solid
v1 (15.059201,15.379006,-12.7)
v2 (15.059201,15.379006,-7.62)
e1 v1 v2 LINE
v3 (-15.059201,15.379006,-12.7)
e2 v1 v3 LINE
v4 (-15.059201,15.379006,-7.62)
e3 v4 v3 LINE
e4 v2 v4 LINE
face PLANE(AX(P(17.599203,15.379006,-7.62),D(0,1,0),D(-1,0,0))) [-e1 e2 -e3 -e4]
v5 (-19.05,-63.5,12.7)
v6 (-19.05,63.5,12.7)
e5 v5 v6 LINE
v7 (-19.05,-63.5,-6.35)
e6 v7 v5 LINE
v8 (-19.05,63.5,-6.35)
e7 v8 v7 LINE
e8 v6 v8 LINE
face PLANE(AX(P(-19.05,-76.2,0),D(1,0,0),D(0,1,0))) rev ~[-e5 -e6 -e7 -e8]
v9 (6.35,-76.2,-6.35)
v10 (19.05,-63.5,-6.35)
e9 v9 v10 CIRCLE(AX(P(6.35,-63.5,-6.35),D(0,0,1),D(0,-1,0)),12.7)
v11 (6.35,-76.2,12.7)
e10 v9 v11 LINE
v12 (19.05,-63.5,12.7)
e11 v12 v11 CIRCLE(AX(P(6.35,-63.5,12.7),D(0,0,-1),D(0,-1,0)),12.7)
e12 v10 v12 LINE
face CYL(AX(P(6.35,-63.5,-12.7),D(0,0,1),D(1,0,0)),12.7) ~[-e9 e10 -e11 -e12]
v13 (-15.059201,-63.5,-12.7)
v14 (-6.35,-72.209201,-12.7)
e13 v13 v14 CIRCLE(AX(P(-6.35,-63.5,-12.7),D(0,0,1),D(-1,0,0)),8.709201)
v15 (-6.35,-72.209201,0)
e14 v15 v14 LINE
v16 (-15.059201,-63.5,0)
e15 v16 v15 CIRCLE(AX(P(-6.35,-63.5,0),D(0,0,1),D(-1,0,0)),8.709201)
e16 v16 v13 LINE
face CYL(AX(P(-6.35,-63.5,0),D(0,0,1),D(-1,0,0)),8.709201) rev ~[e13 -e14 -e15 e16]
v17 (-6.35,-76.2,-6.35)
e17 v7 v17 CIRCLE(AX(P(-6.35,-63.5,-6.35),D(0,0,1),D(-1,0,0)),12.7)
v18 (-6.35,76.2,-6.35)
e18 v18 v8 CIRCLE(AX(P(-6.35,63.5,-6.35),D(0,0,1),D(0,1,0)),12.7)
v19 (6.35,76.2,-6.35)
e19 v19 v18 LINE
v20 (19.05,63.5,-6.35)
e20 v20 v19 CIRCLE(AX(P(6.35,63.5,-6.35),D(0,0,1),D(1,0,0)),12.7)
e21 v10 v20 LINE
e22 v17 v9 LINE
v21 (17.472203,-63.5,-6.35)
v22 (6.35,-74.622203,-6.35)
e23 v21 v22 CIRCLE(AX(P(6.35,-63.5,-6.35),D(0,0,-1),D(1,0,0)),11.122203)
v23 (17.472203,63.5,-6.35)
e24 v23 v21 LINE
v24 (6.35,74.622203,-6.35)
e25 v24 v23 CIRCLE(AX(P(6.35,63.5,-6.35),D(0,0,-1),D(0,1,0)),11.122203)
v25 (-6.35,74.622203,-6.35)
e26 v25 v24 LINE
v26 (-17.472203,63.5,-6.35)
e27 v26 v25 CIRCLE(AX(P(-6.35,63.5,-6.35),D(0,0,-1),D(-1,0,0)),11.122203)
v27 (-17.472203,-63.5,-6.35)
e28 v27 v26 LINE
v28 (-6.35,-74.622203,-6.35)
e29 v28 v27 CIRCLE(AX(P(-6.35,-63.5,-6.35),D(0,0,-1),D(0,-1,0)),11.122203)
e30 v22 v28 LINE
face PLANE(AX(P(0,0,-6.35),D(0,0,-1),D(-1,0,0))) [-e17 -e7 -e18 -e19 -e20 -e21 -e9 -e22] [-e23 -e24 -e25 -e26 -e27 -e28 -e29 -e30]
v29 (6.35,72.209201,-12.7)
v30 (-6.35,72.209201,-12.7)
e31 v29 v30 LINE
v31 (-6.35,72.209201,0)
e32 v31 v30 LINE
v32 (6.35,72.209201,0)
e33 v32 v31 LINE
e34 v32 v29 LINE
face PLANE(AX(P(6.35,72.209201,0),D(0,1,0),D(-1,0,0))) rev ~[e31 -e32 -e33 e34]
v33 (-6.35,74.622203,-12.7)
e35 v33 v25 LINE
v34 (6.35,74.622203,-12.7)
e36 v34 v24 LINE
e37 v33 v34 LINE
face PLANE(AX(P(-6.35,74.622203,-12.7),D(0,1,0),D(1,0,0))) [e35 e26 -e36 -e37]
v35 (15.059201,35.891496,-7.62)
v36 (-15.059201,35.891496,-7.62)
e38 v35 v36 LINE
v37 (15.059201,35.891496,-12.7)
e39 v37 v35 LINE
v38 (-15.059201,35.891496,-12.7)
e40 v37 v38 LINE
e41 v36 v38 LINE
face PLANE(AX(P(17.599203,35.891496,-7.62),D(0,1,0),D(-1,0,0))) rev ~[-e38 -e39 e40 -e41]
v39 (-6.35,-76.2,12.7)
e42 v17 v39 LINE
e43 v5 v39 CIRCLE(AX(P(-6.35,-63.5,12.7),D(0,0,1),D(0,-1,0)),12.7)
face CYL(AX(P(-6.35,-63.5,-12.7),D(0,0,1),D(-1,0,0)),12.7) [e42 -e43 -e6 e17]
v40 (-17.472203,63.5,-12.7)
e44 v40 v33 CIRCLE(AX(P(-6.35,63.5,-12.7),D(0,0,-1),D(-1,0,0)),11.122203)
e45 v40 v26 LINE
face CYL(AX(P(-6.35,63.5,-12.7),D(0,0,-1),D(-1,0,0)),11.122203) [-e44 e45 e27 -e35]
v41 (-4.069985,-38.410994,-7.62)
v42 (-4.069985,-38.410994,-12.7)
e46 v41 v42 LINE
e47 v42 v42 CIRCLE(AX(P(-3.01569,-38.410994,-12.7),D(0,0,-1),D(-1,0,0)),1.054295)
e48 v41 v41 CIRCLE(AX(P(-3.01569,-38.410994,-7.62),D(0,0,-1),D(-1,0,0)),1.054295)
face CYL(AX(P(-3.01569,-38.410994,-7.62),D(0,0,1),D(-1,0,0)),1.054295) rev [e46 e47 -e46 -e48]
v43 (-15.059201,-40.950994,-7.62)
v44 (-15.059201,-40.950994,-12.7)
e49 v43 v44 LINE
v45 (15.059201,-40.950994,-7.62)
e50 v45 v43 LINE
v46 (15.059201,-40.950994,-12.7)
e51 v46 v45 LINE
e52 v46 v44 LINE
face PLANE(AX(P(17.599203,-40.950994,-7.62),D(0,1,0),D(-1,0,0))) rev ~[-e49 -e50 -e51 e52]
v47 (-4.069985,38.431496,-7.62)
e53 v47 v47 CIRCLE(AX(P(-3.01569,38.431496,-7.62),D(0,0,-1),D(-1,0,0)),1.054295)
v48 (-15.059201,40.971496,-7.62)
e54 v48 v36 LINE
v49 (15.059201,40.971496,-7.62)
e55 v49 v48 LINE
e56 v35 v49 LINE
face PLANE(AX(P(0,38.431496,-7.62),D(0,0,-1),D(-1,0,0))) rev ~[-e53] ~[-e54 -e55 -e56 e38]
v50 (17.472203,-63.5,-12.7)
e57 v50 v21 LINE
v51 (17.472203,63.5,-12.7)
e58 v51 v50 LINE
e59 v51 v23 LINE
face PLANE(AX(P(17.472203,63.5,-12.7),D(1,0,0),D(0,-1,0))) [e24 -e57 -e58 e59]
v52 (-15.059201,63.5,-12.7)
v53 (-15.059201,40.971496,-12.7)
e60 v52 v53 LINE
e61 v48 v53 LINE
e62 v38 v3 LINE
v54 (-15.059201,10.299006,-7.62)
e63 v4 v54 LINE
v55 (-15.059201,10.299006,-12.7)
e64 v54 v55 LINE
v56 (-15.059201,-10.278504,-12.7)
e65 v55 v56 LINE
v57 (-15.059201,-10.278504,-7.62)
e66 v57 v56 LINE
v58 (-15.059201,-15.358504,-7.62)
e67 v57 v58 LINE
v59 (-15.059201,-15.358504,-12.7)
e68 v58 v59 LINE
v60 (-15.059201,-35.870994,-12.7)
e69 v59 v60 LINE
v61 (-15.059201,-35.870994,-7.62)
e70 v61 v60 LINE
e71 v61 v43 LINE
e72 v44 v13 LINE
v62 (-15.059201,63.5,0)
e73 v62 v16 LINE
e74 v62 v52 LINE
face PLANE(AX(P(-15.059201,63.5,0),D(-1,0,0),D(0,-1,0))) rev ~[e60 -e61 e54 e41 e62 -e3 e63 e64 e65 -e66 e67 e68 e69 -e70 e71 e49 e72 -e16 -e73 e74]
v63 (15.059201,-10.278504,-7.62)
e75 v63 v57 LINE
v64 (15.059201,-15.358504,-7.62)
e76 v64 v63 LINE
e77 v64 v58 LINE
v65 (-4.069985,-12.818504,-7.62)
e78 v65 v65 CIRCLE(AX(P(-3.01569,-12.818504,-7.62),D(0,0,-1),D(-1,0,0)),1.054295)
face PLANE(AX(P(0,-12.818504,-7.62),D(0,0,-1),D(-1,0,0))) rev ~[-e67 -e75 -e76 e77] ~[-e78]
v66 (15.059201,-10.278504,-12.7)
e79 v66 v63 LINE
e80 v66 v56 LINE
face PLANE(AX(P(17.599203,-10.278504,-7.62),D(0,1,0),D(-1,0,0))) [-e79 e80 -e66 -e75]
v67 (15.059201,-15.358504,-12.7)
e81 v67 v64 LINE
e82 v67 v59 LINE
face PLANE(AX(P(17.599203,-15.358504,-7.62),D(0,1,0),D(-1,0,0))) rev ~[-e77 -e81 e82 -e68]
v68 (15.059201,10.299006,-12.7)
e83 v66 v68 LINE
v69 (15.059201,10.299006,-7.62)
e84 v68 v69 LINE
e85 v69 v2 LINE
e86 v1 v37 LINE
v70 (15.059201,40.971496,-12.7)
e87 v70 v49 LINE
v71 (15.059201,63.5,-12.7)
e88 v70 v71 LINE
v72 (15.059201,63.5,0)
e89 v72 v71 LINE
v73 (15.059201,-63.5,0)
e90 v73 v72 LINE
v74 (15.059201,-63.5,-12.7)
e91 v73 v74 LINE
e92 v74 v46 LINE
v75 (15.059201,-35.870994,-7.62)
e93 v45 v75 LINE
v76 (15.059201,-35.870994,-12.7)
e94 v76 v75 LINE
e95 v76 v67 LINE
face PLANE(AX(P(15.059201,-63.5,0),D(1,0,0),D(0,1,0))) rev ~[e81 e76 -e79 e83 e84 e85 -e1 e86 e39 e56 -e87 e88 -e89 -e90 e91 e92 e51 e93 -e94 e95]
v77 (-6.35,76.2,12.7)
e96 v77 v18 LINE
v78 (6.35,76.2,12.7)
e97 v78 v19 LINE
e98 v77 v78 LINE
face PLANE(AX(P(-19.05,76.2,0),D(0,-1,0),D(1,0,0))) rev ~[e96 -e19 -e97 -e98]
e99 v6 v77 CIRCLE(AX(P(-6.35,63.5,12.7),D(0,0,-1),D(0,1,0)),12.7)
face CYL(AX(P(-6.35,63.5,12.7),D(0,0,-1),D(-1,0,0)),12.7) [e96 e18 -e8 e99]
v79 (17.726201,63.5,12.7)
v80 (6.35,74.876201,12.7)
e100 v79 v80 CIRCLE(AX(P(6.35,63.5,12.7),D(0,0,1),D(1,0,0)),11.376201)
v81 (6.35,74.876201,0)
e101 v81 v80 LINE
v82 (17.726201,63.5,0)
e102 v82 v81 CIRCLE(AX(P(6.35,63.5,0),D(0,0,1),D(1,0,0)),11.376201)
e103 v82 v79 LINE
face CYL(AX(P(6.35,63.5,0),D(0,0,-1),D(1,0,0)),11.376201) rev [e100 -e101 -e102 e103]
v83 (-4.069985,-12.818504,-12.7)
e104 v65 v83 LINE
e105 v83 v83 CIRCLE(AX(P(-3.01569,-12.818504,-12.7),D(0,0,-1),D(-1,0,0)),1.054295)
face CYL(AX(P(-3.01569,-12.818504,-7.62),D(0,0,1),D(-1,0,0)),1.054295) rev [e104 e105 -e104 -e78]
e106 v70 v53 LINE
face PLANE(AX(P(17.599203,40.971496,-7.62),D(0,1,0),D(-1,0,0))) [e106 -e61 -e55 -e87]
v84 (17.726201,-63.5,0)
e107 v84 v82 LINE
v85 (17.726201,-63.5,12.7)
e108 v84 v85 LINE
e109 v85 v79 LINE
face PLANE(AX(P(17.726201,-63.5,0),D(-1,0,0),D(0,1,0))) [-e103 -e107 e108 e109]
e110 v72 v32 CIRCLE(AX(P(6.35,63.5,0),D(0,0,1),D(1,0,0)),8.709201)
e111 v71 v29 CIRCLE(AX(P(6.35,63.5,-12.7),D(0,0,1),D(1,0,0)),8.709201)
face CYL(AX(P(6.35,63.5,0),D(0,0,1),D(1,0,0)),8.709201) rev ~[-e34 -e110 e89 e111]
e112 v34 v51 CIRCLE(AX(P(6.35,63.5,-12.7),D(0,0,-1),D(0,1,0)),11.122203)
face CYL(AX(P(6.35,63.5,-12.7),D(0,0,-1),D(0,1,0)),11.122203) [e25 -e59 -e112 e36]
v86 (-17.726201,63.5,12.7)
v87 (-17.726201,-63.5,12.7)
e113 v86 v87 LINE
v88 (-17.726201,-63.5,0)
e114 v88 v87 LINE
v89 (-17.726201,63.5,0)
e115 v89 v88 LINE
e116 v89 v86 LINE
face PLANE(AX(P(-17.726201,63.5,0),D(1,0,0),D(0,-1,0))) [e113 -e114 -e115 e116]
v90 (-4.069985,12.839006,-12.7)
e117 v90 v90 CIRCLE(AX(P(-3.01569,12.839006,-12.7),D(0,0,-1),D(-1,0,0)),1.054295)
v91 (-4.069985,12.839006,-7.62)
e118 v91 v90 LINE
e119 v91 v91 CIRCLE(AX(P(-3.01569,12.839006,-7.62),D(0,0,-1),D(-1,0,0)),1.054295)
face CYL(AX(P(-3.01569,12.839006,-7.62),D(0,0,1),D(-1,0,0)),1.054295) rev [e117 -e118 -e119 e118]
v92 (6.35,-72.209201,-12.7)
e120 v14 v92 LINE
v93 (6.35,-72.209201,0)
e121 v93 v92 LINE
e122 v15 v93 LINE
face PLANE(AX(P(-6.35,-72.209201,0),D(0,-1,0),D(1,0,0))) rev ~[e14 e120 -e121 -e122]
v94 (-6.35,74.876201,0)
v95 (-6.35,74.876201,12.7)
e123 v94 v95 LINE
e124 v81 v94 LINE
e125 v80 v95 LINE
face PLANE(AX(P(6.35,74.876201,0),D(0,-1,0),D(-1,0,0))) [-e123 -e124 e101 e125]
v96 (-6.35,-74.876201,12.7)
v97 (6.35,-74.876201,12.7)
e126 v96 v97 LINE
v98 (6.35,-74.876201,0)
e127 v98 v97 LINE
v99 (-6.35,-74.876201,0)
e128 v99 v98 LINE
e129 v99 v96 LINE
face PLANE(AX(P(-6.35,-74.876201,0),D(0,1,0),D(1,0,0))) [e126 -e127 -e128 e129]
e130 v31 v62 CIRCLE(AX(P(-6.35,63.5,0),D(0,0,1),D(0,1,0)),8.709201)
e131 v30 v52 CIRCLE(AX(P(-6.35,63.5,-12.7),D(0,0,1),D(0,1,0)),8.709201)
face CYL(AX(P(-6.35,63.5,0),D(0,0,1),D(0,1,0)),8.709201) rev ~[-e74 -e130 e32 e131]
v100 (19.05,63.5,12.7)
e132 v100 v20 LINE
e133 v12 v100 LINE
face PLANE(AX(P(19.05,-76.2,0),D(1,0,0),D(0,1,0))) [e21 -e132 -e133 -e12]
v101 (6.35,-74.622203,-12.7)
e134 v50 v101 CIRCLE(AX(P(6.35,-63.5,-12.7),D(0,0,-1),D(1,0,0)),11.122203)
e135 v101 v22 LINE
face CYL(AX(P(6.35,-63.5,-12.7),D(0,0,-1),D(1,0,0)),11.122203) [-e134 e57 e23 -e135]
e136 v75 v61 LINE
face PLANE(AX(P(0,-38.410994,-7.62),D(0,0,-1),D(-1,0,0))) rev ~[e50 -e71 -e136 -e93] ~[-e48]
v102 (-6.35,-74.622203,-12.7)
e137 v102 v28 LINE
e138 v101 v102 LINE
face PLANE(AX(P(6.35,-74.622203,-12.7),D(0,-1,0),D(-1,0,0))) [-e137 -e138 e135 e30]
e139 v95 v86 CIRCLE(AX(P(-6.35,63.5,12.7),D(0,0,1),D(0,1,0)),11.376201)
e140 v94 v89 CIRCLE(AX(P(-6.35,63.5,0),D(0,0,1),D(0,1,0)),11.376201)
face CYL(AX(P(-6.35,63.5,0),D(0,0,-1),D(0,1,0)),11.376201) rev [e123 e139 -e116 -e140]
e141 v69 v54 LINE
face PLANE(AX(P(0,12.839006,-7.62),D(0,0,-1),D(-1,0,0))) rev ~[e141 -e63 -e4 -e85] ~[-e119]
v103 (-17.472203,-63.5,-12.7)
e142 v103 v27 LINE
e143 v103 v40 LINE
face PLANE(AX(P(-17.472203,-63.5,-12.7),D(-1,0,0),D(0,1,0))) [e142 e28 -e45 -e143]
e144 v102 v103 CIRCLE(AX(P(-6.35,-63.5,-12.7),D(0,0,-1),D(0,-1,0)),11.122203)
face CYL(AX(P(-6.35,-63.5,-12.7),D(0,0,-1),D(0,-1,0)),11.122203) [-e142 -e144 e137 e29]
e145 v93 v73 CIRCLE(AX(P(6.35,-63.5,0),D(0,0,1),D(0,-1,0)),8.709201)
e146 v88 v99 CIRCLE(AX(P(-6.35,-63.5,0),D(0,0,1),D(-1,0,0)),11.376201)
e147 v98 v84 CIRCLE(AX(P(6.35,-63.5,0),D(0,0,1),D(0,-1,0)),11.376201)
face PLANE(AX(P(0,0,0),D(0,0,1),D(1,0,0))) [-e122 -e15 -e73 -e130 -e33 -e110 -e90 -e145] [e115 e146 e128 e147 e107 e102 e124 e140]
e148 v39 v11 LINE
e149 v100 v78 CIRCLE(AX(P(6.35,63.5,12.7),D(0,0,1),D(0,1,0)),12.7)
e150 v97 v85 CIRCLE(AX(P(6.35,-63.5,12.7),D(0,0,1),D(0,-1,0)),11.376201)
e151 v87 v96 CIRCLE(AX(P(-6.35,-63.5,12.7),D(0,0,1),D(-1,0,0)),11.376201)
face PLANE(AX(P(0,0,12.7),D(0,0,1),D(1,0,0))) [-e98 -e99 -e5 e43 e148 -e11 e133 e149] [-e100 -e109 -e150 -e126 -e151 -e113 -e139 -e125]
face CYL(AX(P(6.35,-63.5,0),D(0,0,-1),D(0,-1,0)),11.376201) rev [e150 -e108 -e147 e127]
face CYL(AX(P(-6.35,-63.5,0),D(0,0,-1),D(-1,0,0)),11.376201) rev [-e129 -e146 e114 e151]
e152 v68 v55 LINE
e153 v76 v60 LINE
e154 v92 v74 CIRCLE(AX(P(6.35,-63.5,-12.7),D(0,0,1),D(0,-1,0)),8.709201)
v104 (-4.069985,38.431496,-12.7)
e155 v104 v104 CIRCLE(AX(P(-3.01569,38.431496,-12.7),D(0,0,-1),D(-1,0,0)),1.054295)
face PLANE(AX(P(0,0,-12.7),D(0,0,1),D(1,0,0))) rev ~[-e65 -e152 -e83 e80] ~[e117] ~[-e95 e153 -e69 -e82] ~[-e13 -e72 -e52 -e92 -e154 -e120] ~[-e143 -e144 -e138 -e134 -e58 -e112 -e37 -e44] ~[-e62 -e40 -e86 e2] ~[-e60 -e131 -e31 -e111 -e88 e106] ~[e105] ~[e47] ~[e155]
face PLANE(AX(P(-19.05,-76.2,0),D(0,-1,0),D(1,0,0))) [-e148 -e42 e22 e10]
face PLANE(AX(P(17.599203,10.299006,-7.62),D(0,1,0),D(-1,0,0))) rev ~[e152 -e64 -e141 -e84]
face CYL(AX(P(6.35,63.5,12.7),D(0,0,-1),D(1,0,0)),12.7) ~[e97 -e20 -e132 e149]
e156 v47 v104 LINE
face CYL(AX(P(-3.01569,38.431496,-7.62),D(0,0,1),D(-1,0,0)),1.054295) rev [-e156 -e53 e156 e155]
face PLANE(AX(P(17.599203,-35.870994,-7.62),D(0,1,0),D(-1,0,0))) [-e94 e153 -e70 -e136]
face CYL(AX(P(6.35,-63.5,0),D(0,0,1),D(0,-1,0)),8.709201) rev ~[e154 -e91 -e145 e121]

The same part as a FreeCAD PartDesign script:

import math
import FreeCAD as App
import Part
import Sketcher

V = App.Vector
Q = App.Units.Quantity


def edges_at(feature, points):
    """Names of the edges that pass closest to the given points."""
    edges = feature.Shape.Edges
    near = lambda p: min(range(len(edges)), key=lambda i: edges[i].distToShape(Part.Vertex(*p))[0])
    return sorted({f"Edge{near(p) + 1}" for p in points})


def add_polygon(sketch, points):
    """Adds a closed chain of lines whose ends are joined by coincident constraints."""
    first, n = sketch.GeometryCount, len(points)
    for a, b in zip(points, points[1:] + points[:1]):
        sketch.addGeometry(Part.LineSegment(App.Vector(*a, 0), App.Vector(*b, 0)), False)
    for i in range(n):
        sketch.addConstraint(Sketcher.Constraint("Coincident", first + i, 2, first + (i + 1) % n, 1))

doc = App.newDocument("Part")
params = doc.addObject("Spreadsheet::Sheet", "Params")
for row, (alias, value) in enumerate([
    ("sketch1_height", "6 in"),
    ("sketch1_width", "1.5 in"),
    ("pad1_length", "1 in"),
    ("fillet_radius", "0.5 in"),
    ("sketch2_height", "5 in"),
    ("sketch2_width", "0.5 in"),
    ("sketch3_height", "5 in"),
    ("sketch3_width", "0.5 in"),
    ("pad2_length", "0.5 in"),
    ("sketch4_radius", "0.5 in"),
    ("sketch4_height", "5 in"),
    ("sketch4_width", "0.5 in"),
    ("pocket2_length", "0.25 in"),
    ("sketch5_height", "0.2 in"),
    ("pad3_length", "0.2 in"),
    ("sketch6_height", "5 in"),
    ("sketch6_width", "0.5 in"),
    ("pocket3_length", "0.25 in"),
    ("sketch7_height", "5 in"),
    ("sketch7_width", "0.5 in"),
    ("pocket4_length", "0.5 in"),
], start=1):
    params.set(f"A{row}", alias)
    params.set(f"B{row}", "=" + value)
    params.setAlias(f"B{row}", alias)

body = doc.addObject("PartDesign::Body", "Body")

# Sketch on XY plane
sketch1 = body.newObject("Sketcher::SketchObject", "Sketch")
sketch1.AttachmentSupport = (doc.getObject("XY_Plane"), [""])
sketch1.MapMode = "FlatFace"
add_polygon(sketch1, [(-19, 76), (-19, -76), (19, -76), (19, 76)])  # lines 0-3
sketch1.addConstraint(Sketcher.Constraint("Vertical", 0))
sketch1.addConstraint(Sketcher.Constraint("Horizontal", 1))
sketch1.addConstraint(Sketcher.Constraint("Vertical", 2))
sketch1.addConstraint(Sketcher.Constraint("Horizontal", 3))
sketch1.addConstraint(Sketcher.Constraint("Symmetric", 0, 2, 2, 2, -1, 1))
sketch1.addConstraint(Sketcher.Constraint("DistanceY", 0, 2, 0, 1, Q("6 in")))
sketch1.addConstraint(Sketcher.Constraint("DistanceX", 1, 1, 1, 2, Q("1.5 in")))
sketch1.setExpression("Constraints[9]", "Params.sketch1_height")
sketch1.setExpression("Constraints[10]", "Params.sketch1_width")
pad1 = body.newObject("PartDesign::Pad", "Pad")
pad1.Profile = sketch1
pad1.setExpression("Length", "Params.pad1_length")
pad1.Midplane = True
doc.recompute()

fillet = body.newObject("PartDesign::Fillet", "Fillet")
fillet.Base = (pad1, edges_at(pad1, [
    (19.05, -76.2, 0),
    (-19.05, -76.2, 0),
    (-19.05, 76.2, 0),
    (19.05, 76.2, 0),
]))
fillet.setExpression("Radius", "Params.fillet_radius")

# Sketch on XY plane
sketch2 = body.newObject("Sketcher::SketchObject", "Sketch001")
sketch2.AttachmentSupport = (doc.getObject("XY_Plane"), [""])
sketch2.MapMode = "FlatFace"
sketch2.AttachmentOffset = App.Placement(V(0, 0, 0.5 * 25.4), App.Rotation())
sketch2.addGeometry(Part.LineSegment(V(-18, 64, 0), V(-18, -64, 0)), False)
sketch2.addGeometry(Part.ArcOfCircle(Part.Circle(V(-6, -64, 0), V(0, 0, 1), 11), math.radians(180), math.radians(270)), False)
sketch2.addGeometry(Part.LineSegment(V(-6, -75, 0), V(6, -75, 0)), False)
sketch2.addGeometry(Part.ArcOfCircle(Part.Circle(V(6, -64, 0), V(0, 0, 1), 11), math.radians(-90), math.radians(0)), False)
sketch2.addGeometry(Part.LineSegment(V(18, -64, 0), V(18, 64, 0)), False)
sketch2.addGeometry(Part.ArcOfCircle(Part.Circle(V(6, 64, 0), V(0, 0, 1), 11), math.radians(0), math.radians(90)), False)
sketch2.addGeometry(Part.LineSegment(V(6, 75, 0), V(-6, 75, 0)), False)
sketch2.addGeometry(Part.ArcOfCircle(Part.Circle(V(-6, 64, 0), V(0, 0, 1), 11), math.radians(90), math.radians(180)), False)
sketch2.addConstraint(Sketcher.Constraint("Tangent", 0, 2, 1, 1))
sketch2.addConstraint(Sketcher.Constraint("Tangent", 1, 2, 2, 1))
sketch2.addConstraint(Sketcher.Constraint("Tangent", 2, 2, 3, 1))
sketch2.addConstraint(Sketcher.Constraint("Tangent", 3, 2, 4, 1))
sketch2.addConstraint(Sketcher.Constraint("Tangent", 4, 2, 5, 1))
sketch2.addConstraint(Sketcher.Constraint("Tangent", 5, 2, 6, 1))
sketch2.addConstraint(Sketcher.Constraint("Tangent", 6, 2, 7, 1))
sketch2.addConstraint(Sketcher.Constraint("Tangent", 7, 2, 0, 1))
sketch2.addConstraint(Sketcher.Constraint("Vertical", 0))
sketch2.addConstraint(Sketcher.Constraint("Horizontal", 2))
sketch2.addConstraint(Sketcher.Constraint("Vertical", 4))
sketch2.addConstraint(Sketcher.Constraint("Horizontal", 6))
sketch2.addConstraint(Sketcher.Constraint("Equal", 1, 3))
sketch2.addConstraint(Sketcher.Constraint("Equal", 3, 5))
sketch2.addConstraint(Sketcher.Constraint("Equal", 5, 7))
sketch2.addConstraint(Sketcher.Constraint("Symmetric", 1, 3, 5, 3, -1, 1))
sketch2.addConstraint(Sketcher.Constraint("DistanceY", 0, 2, 0, 1, Q("5 in")))
sketch2.addConstraint(Sketcher.Constraint("DistanceX", 2, 1, 2, 2, Q("0.5 in")))
sketch2.addConstraint(Sketcher.Constraint("Radius", 1, 11.249201))
sketch2.setExpression("Constraints[16]", "Params.sketch2_height")
sketch2.setExpression("Constraints[17]", "Params.sketch2_width")
pocket1 = body.newObject("PartDesign::Pocket", "Pocket")
pocket1.Profile = sketch2
pocket1.Type = "ThroughAll"

# Sketch on XY plane
sketch3 = body.newObject("Sketcher::SketchObject", "Sketch002")
sketch3.AttachmentSupport = (doc.getObject("XY_Plane"), [""])
sketch3.MapMode = "FlatFace"
sketch3.addGeometry(Part.LineSegment(V(-6, 75, 0), V(6, 75, 0)), False)
sketch3.addGeometry(Part.ArcOfCircle(Part.Circle(V(6, 64, 0), V(0, 0, 1), 11), math.radians(0), math.radians(90)), False)
sketch3.addGeometry(Part.LineSegment(V(18, 64, 0), V(18, -64, 0)), False)
sketch3.addGeometry(Part.ArcOfCircle(Part.Circle(V(6, -64, 0), V(0, 0, 1), 11), math.radians(-90), math.radians(0)), False)
sketch3.addGeometry(Part.LineSegment(V(6, -75, 0), V(-6, -75, 0)), False)
sketch3.addGeometry(Part.ArcOfCircle(Part.Circle(V(-6, -64, 0), V(0, 0, 1), 11), math.radians(180), math.radians(270)), False)
sketch3.addGeometry(Part.LineSegment(V(-18, -64, 0), V(-18, 64, 0)), False)
sketch3.addGeometry(Part.ArcOfCircle(Part.Circle(V(-6, 64, 0), V(0, 0, 1), 11), math.radians(90), math.radians(180)), False)
sketch3.addGeometry(Part.LineSegment(V(6, 72, 0), V(-6, 72, 0)), False)
sketch3.addGeometry(Part.ArcOfCircle(Part.Circle(V(-6, 64, 0), V(0, 0, 1), 9), math.radians(90), math.radians(180)), False)
sketch3.addGeometry(Part.LineSegment(V(-15, 64, 0), V(-15, -64, 0)), False)
sketch3.addGeometry(Part.ArcOfCircle(Part.Circle(V(-6, -64, 0), V(0, 0, 1), 9), math.radians(180), math.radians(270)), False)
sketch3.addGeometry(Part.LineSegment(V(-6, -72, 0), V(6, -72, 0)), False)
sketch3.addGeometry(Part.ArcOfCircle(Part.Circle(V(6, -64, 0), V(0, 0, 1), 9), math.radians(-90), math.radians(0)), False)
sketch3.addGeometry(Part.LineSegment(V(15, -64, 0), V(15, 64, 0)), False)
sketch3.addGeometry(Part.ArcOfCircle(Part.Circle(V(6, 64, 0), V(0, 0, 1), 9), math.radians(0), math.radians(90)), False)
sketch3.addConstraint(Sketcher.Constraint("Tangent", 0, 2, 1, 2))
sketch3.addConstraint(Sketcher.Constraint("Tangent", 1, 1, 2, 1))
sketch3.addConstraint(Sketcher.Constraint("Tangent", 2, 2, 3, 2))
sketch3.addConstraint(Sketcher.Constraint("Tangent", 3, 1, 4, 1))
sketch3.addConstraint(Sketcher.Constraint("Tangent", 4, 2, 5, 2))
sketch3.addConstraint(Sketcher.Constraint("Tangent", 5, 1, 6, 1))
sketch3.addConstraint(Sketcher.Constraint("Tangent", 6, 2, 7, 2))
sketch3.addConstraint(Sketcher.Constraint("Tangent", 7, 1, 0, 1))
sketch3.addConstraint(Sketcher.Constraint("Tangent", 8, 2, 9, 1))
sketch3.addConstraint(Sketcher.Constraint("Tangent", 9, 2, 10, 1))
sketch3.addConstraint(Sketcher.Constraint("Tangent", 10, 2, 11, 1))
sketch3.addConstraint(Sketcher.Constraint("Tangent", 11, 2, 12, 1))
sketch3.addConstraint(Sketcher.Constraint("Tangent", 12, 2, 13, 1))
sketch3.addConstraint(Sketcher.Constraint("Tangent", 13, 2, 14, 1))
sketch3.addConstraint(Sketcher.Constraint("Tangent", 14, 2, 15, 1))
sketch3.addConstraint(Sketcher.Constraint("Tangent", 15, 2, 8, 1))
sketch3.addConstraint(Sketcher.Constraint("Horizontal", 0))
sketch3.addConstraint(Sketcher.Constraint("Vertical", 2))
sketch3.addConstraint(Sketcher.Constraint("Horizontal", 4))
sketch3.addConstraint(Sketcher.Constraint("Vertical", 6))
sketch3.addConstraint(Sketcher.Constraint("Horizontal", 8))
sketch3.addConstraint(Sketcher.Constraint("Vertical", 10))
sketch3.addConstraint(Sketcher.Constraint("Horizontal", 12))
sketch3.addConstraint(Sketcher.Constraint("Vertical", 14))
sketch3.addConstraint(Sketcher.Constraint("Coincident", 9, 3, 7, 3))
sketch3.addConstraint(Sketcher.Constraint("Coincident", 11, 3, 5, 3))
sketch3.addConstraint(Sketcher.Constraint("Coincident", 13, 3, 3, 3))
sketch3.addConstraint(Sketcher.Constraint("Equal", 1, 3))
sketch3.addConstraint(Sketcher.Constraint("Equal", 3, 5))
sketch3.addConstraint(Sketcher.Constraint("Equal", 5, 7))
sketch3.addConstraint(Sketcher.Constraint("Equal", 13, 15))
sketch3.addConstraint(Sketcher.Constraint("Symmetric", 1, 3, 5, 3, -1, 1))
sketch3.addConstraint(Sketcher.Constraint("DistanceY", 2, 2, 2, 1, Q("5 in")))
sketch3.addConstraint(Sketcher.Constraint("DistanceX", 0, 1, 0, 2, Q("0.5 in")))
sketch3.addConstraint(Sketcher.Constraint("DistanceY", 8, 2, 7, 1, Q("0.1 in")))
sketch3.addConstraint(Sketcher.Constraint("Radius", 1, 11.249201))
sketch3.setExpression("Constraints[32]", "Params.sketch3_height")
sketch3.setExpression("Constraints[33]", "Params.sketch3_width")
pad2 = body.newObject("PartDesign::Pad", "Pad001")
pad2.Profile = sketch3
pad2.setExpression("Length", "Params.pad2_length")
pad2.Reversed = True

# Sketch on XY plane
sketch4 = body.newObject("Sketcher::SketchObject", "Sketch003")
sketch4.AttachmentSupport = (doc.getObject("XY_Plane"), [""])
sketch4.MapMode = "FlatFace"
sketch4.AttachmentOffset = App.Placement(V(0, 0, -0.5 * 25.4), App.Rotation())
sketch4.addGeometry(Part.LineSegment(V(6, -76, 0), V(-6, -76, 0)), False)
sketch4.addGeometry(Part.ArcOfCircle(Part.Circle(V(-6, -64, 0), V(0, 0, 1), 13), math.radians(180), math.radians(270)), False)
sketch4.addGeometry(Part.LineSegment(V(-19, -64, 0), V(-19, 64, 0)), False)
sketch4.addGeometry(Part.ArcOfCircle(Part.Circle(V(-6, 64, 0), V(0, 0, 1), 13), math.radians(90), math.radians(180)), False)
sketch4.addGeometry(Part.LineSegment(V(-6, 76, 0), V(6, 76, 0)), False)
sketch4.addGeometry(Part.ArcOfCircle(Part.Circle(V(6, 64, 0), V(0, 0, 1), 13), math.radians(0), math.radians(90)), False)
sketch4.addGeometry(Part.LineSegment(V(19, 64, 0), V(19, -64, 0)), False)
sketch4.addGeometry(Part.ArcOfCircle(Part.Circle(V(6, -64, 0), V(0, 0, 1), 13), math.radians(-90), math.radians(0)), False)
sketch4.addGeometry(Part.LineSegment(V(18, -64, 0), V(18, 64, 0)), False)
sketch4.addGeometry(Part.ArcOfCircle(Part.Circle(V(6, 64, 0), V(0, 0, 1), 11), math.radians(0), math.radians(90)), False)
sketch4.addGeometry(Part.LineSegment(V(6, 75, 0), V(-6, 75, 0)), False)
sketch4.addGeometry(Part.ArcOfCircle(Part.Circle(V(-6, 64, 0), V(0, 0, 1), 11), math.radians(90), math.radians(180)), False)
sketch4.addGeometry(Part.LineSegment(V(-18, 64, 0), V(-18, -64, 0)), False)
sketch4.addGeometry(Part.ArcOfCircle(Part.Circle(V(-6, -64, 0), V(0, 0, 1), 11), math.radians(180), math.radians(270)), False)
sketch4.addGeometry(Part.LineSegment(V(-6, -75, 0), V(6, -75, 0)), False)
sketch4.addGeometry(Part.ArcOfCircle(Part.Circle(V(6, -64, 0), V(0, 0, 1), 11), math.radians(-90), math.radians(0)), False)
sketch4.addConstraint(Sketcher.Constraint("Tangent", 0, 2, 1, 2))
sketch4.addConstraint(Sketcher.Constraint("Tangent", 1, 1, 2, 1))
sketch4.addConstraint(Sketcher.Constraint("Tangent", 2, 2, 3, 2))
sketch4.addConstraint(Sketcher.Constraint("Tangent", 3, 1, 4, 1))
sketch4.addConstraint(Sketcher.Constraint("Tangent", 4, 2, 5, 2))
sketch4.addConstraint(Sketcher.Constraint("Tangent", 5, 1, 6, 1))
sketch4.addConstraint(Sketcher.Constraint("Tangent", 6, 2, 7, 2))
sketch4.addConstraint(Sketcher.Constraint("Tangent", 7, 1, 0, 1))
sketch4.addConstraint(Sketcher.Constraint("Tangent", 8, 2, 9, 1))
sketch4.addConstraint(Sketcher.Constraint("Tangent", 9, 2, 10, 1))
sketch4.addConstraint(Sketcher.Constraint("Tangent", 10, 2, 11, 1))
sketch4.addConstraint(Sketcher.Constraint("Tangent", 11, 2, 12, 1))
sketch4.addConstraint(Sketcher.Constraint("Tangent", 12, 2, 13, 1))
sketch4.addConstraint(Sketcher.Constraint("Tangent", 13, 2, 14, 1))
sketch4.addConstraint(Sketcher.Constraint("Tangent", 14, 2, 15, 1))
sketch4.addConstraint(Sketcher.Constraint("Tangent", 15, 2, 8, 1))
sketch4.addConstraint(Sketcher.Constraint("Horizontal", 0))
sketch4.addConstraint(Sketcher.Constraint("Vertical", 2))
sketch4.addConstraint(Sketcher.Constraint("Horizontal", 4))
sketch4.addConstraint(Sketcher.Constraint("Vertical", 6))
sketch4.addConstraint(Sketcher.Constraint("Vertical", 8))
sketch4.addConstraint(Sketcher.Constraint("Horizontal", 10))
sketch4.addConstraint(Sketcher.Constraint("Vertical", 12))
sketch4.addConstraint(Sketcher.Constraint("Horizontal", 14))
sketch4.addConstraint(Sketcher.Constraint("Coincident", 9, 3, 5, 3))
sketch4.addConstraint(Sketcher.Constraint("Coincident", 11, 3, 3, 3))
sketch4.addConstraint(Sketcher.Constraint("Coincident", 13, 3, 1, 3))
sketch4.addConstraint(Sketcher.Constraint("Equal", 1, 3))
sketch4.addConstraint(Sketcher.Constraint("Equal", 3, 5))
sketch4.addConstraint(Sketcher.Constraint("Equal", 5, 7))
sketch4.addConstraint(Sketcher.Constraint("Equal", 13, 15))
sketch4.addConstraint(Sketcher.Constraint("Symmetric", 1, 3, 5, 3, -1, 1))
sketch4.addConstraint(Sketcher.Constraint("Radius", 1, Q("0.5 in")))
sketch4.addConstraint(Sketcher.Constraint("DistanceY", 2, 1, 2, 2, Q("5 in")))
sketch4.addConstraint(Sketcher.Constraint("DistanceX", 0, 2, 0, 1, Q("0.5 in")))
sketch4.addConstraint(Sketcher.Constraint("Radius", 9, 11.249203))
sketch4.setExpression("Constraints[32]", "Params.sketch4_radius")
sketch4.setExpression("Constraints[33]", "Params.sketch4_height")
sketch4.setExpression("Constraints[34]", "Params.sketch4_width")
pocket2 = body.newObject("PartDesign::Pocket", "Pocket001")
pocket2.Profile = sketch4
pocket2.setExpression("Length", "Params.pocket2_length")
pocket2.Reversed = True

# Sketch on XY plane
sketch5 = body.newObject("Sketcher::SketchObject", "Sketch004")
sketch5.AttachmentSupport = (doc.getObject("XY_Plane"), [""])
sketch5.MapMode = "FlatFace"
sketch5.AttachmentOffset = App.Placement(V(0, 0, -0.3 * 25.4), App.Rotation())
add_polygon(sketch5, [(17.6, 41), (17.6, 35.9), (-17.6, 35.9), (-17.6, 41)])  # lines 0-3
sketch5.addGeometry(Part.Circle(V(-3, 38.4, 0), V(0, 0, 1), 1.1), False)  # 4
add_polygon(sketch5, [(17.6, 15.4), (17.6, 10.3), (-17.6, 10.3), (-17.6, 15.4)])  # lines 5-8
sketch5.addGeometry(Part.Circle(V(-3, 12.8, 0), V(0, 0, 1), 1.1), False)  # 9
add_polygon(sketch5, [(17.6, -10.3), (17.6, -15.4), (-17.6, -15.4), (-17.6, -10.3)])  # lines 10-13
sketch5.addGeometry(Part.Circle(V(-3, -12.8, 0), V(0, 0, 1), 1.1), False)  # 14
add_polygon(sketch5, [(17.6, -35.9), (17.6, -41), (-17.6, -41), (-17.6, -35.9)])  # lines 15-18
sketch5.addGeometry(Part.Circle(V(-3, -38.4, 0), V(0, 0, 1), 1.1), False)  # 19
sketch5.addConstraint(Sketcher.Constraint("Vertical", 0))
sketch5.addConstraint(Sketcher.Constraint("Horizontal", 1))
sketch5.addConstraint(Sketcher.Constraint("Vertical", 2))
sketch5.addConstraint(Sketcher.Constraint("Horizontal", 3))
sketch5.addConstraint(Sketcher.Constraint("Vertical", 5))
sketch5.addConstraint(Sketcher.Constraint("Horizontal", 6))
sketch5.addConstraint(Sketcher.Constraint("Vertical", 7))
sketch5.addConstraint(Sketcher.Constraint("Horizontal", 8))
sketch5.addConstraint(Sketcher.Constraint("Vertical", 10))
sketch5.addConstraint(Sketcher.Constraint("Horizontal", 11))
sketch5.addConstraint(Sketcher.Constraint("Vertical", 12))
sketch5.addConstraint(Sketcher.Constraint("Horizontal", 13))
sketch5.addConstraint(Sketcher.Constraint("Vertical", 15))
sketch5.addConstraint(Sketcher.Constraint("Horizontal", 16))
sketch5.addConstraint(Sketcher.Constraint("Vertical", 17))
sketch5.addConstraint(Sketcher.Constraint("Horizontal", 18))
sketch5.addConstraint(Sketcher.Constraint("Equal", 4, 9))
sketch5.addConstraint(Sketcher.Constraint("Equal", 9, 14))
sketch5.addConstraint(Sketcher.Constraint("Equal", 14, 19))
sketch5.addConstraint(Sketcher.Constraint("Vertical", 4, 3, 9, 3))
sketch5.addConstraint(Sketcher.Constraint("Vertical", 9, 3, 14, 3))
sketch5.addConstraint(Sketcher.Constraint("Vertical", 14, 3, 19, 3))
sketch5.addConstraint(Sketcher.Constraint("Vertical", 3, 2, 5, 2))
sketch5.addConstraint(Sketcher.Constraint("Vertical", 2, 2, 6, 2))
sketch5.addConstraint(Sketcher.Constraint("Vertical", 8, 2, 10, 2))
sketch5.addConstraint(Sketcher.Constraint("Vertical", 7, 2, 11, 2))
sketch5.addConstraint(Sketcher.Constraint("Vertical", 13, 2, 15, 2))
sketch5.addConstraint(Sketcher.Constraint("Vertical", 12, 2, 16, 2))
sketch5.addConstraint(Sketcher.Constraint("Equal", 2, 5))
sketch5.addConstraint(Sketcher.Constraint("Equal", 7, 10))
sketch5.addConstraint(Sketcher.Constraint("Equal", 12, 15))
sketch5.addConstraint(Sketcher.Constraint("DistanceY", 0, 2, 0, 1, Q("0.2 in")))
sketch5.addConstraint(Sketcher.Constraint("DistanceY", 0, 2, 4, 3, Q("0.1 in")))
sketch5.addConstraint(Sketcher.Constraint("DistanceY", 5, 2, 9, 3, Q("0.1 in")))
sketch5.addConstraint(Sketcher.Constraint("DistanceY", 10, 2, 14, 3, Q("0.1 in")))
sketch5.addConstraint(Sketcher.Constraint("DistanceY", 15, 2, 19, 3, Q("0.1 in")))
sketch5.addConstraint(Sketcher.Constraint("Diameter", 4, 2.10859))
sketch5.addConstraint(Sketcher.Constraint("DistanceY", 14, 3, 4, 3, 51.25))
sketch5.addConstraint(Sketcher.Constraint("DistanceY", 19, 3, 9, 3, 51.25))
sketch5.addConstraint(Sketcher.Constraint("DistanceX", 1, 2, 1, 1, 35.198406))
sketch5.addConstraint(Sketcher.Constraint("DistanceX", 4, 3, -1, 1, 3.01569))
sketch5.addConstraint(Sketcher.Constraint("DistanceY", 9, 3, 4, 3, 25.59249))
sketch5.addConstraint(Sketcher.Constraint("DistanceY", -1, 1, 4, 3, 38.431496))
sketch5.addConstraint(Sketcher.Constraint("DistanceX", -1, 1, 0, 2, 17.599203))
sketch5.setExpression("Constraints[47]", "Params.sketch5_height")
pad3 = body.newObject("PartDesign::Pad", "Pad002")
pad3.Profile = sketch5
pad3.setExpression("Length", "Params.pad3_length")
pad3.Reversed = True

# Sketch on XY plane
sketch6 = body.newObject("Sketcher::SketchObject", "Sketch005")
sketch6.AttachmentSupport = (doc.getObject("XY_Plane"), [""])
sketch6.MapMode = "FlatFace"
sketch6.AttachmentOffset = App.Placement(V(0, 0, -0.5 * 25.4), App.Rotation())
sketch6.addGeometry(Part.LineSegment(V(18, 64, 0), V(18, -64, 0)), False)
sketch6.addGeometry(Part.ArcOfCircle(Part.Circle(V(6, -64, 0), V(0, 0, 1), 11), math.radians(-90), math.radians(0)), False)
sketch6.addGeometry(Part.LineSegment(V(6, -75, 0), V(-6, -75, 0)), False)
sketch6.addGeometry(Part.ArcOfCircle(Part.Circle(V(-6, -64, 0), V(0, 0, 1), 11), math.radians(180), math.radians(270)), False)
sketch6.addGeometry(Part.LineSegment(V(-18, -64, 0), V(-18, 64, 0)), False)
sketch6.addGeometry(Part.ArcOfCircle(Part.Circle(V(-6, 64, 0), V(0, 0, 1), 11), math.radians(90), math.radians(180)), False)
sketch6.addGeometry(Part.LineSegment(V(-6, 75, 0), V(6, 75, 0)), False)
sketch6.addGeometry(Part.ArcOfCircle(Part.Circle(V(6, 64, 0), V(0, 0, 1), 11), math.radians(0), math.radians(90)), False)
sketch6.addGeometry(Part.LineSegment(V(17, -64, 0), V(17, 64, 0)), False)
sketch6.addGeometry(Part.ArcOfCircle(Part.Circle(V(6, 64, 0), V(0, 0, 1), 11), math.radians(0), math.radians(90)), False)
sketch6.addGeometry(Part.LineSegment(V(6, 75, 0), V(-6, 75, 0)), False)
sketch6.addGeometry(Part.ArcOfCircle(Part.Circle(V(-6, 64, 0), V(0, 0, 1), 11), math.radians(90), math.radians(180)), False)
sketch6.addGeometry(Part.LineSegment(V(-17, 64, 0), V(-17, -64, 0)), False)
sketch6.addGeometry(Part.ArcOfCircle(Part.Circle(V(-6, -64, 0), V(0, 0, 1), 11), math.radians(180), math.radians(270)), False)
sketch6.addGeometry(Part.LineSegment(V(-6, -75, 0), V(6, -75, 0)), False)
sketch6.addGeometry(Part.ArcOfCircle(Part.Circle(V(6, -64, 0), V(0, 0, 1), 11), math.radians(-90), math.radians(0)), False)
sketch6.addConstraint(Sketcher.Constraint("Tangent", 0, 2, 1, 2))
sketch6.addConstraint(Sketcher.Constraint("Tangent", 1, 1, 2, 1))
sketch6.addConstraint(Sketcher.Constraint("Tangent", 2, 2, 3, 2))
sketch6.addConstraint(Sketcher.Constraint("Tangent", 3, 1, 4, 1))
sketch6.addConstraint(Sketcher.Constraint("Tangent", 4, 2, 5, 2))
sketch6.addConstraint(Sketcher.Constraint("Tangent", 5, 1, 6, 1))
sketch6.addConstraint(Sketcher.Constraint("Tangent", 6, 2, 7, 2))
sketch6.addConstraint(Sketcher.Constraint("Tangent", 7, 1, 0, 1))
sketch6.addConstraint(Sketcher.Constraint("Tangent", 8, 2, 9, 1))
sketch6.addConstraint(Sketcher.Constraint("Tangent", 9, 2, 10, 1))
sketch6.addConstraint(Sketcher.Constraint("Tangent", 10, 2, 11, 1))
sketch6.addConstraint(Sketcher.Constraint("Tangent", 11, 2, 12, 1))
sketch6.addConstraint(Sketcher.Constraint("Tangent", 12, 2, 13, 1))
sketch6.addConstraint(Sketcher.Constraint("Tangent", 13, 2, 14, 1))
sketch6.addConstraint(Sketcher.Constraint("Tangent", 14, 2, 15, 1))
sketch6.addConstraint(Sketcher.Constraint("Tangent", 15, 2, 8, 1))
sketch6.addConstraint(Sketcher.Constraint("Vertical", 0))
sketch6.addConstraint(Sketcher.Constraint("Horizontal", 2))
sketch6.addConstraint(Sketcher.Constraint("Vertical", 4))
sketch6.addConstraint(Sketcher.Constraint("Horizontal", 6))
sketch6.addConstraint(Sketcher.Constraint("Vertical", 8))
sketch6.addConstraint(Sketcher.Constraint("Horizontal", 10))
sketch6.addConstraint(Sketcher.Constraint("Vertical", 12))
sketch6.addConstraint(Sketcher.Constraint("Horizontal", 14))
sketch6.addConstraint(Sketcher.Constraint("Coincident", 9, 3, 7, 3))
sketch6.addConstraint(Sketcher.Constraint("Coincident", 11, 3, 5, 3))
sketch6.addConstraint(Sketcher.Constraint("Coincident", 13, 3, 3, 3))
sketch6.addConstraint(Sketcher.Constraint("Equal", 1, 3))
sketch6.addConstraint(Sketcher.Constraint("Equal", 3, 5))
sketch6.addConstraint(Sketcher.Constraint("Equal", 5, 7))
sketch6.addConstraint(Sketcher.Constraint("Equal", 13, 15))
sketch6.addConstraint(Sketcher.Constraint("Symmetric", 1, 3, 5, 3, -1, 1))
sketch6.addConstraint(Sketcher.Constraint("DistanceY", 0, 2, 0, 1, Q("5 in")))
sketch6.addConstraint(Sketcher.Constraint("DistanceX", 2, 2, 2, 1, Q("0.5 in")))
sketch6.addConstraint(Sketcher.Constraint("DistanceX", 8, 2, 7, 1, Q("0.005 in")))
sketch6.addConstraint(Sketcher.Constraint("Radius", 1, 11.249203))
sketch6.setExpression("Constraints[32]", "Params.sketch6_height")
sketch6.setExpression("Constraints[33]", "Params.sketch6_width")
pocket3 = body.newObject("PartDesign::Pocket", "Pocket002")
pocket3.Profile = sketch6
pocket3.setExpression("Length", "Params.pocket3_length")
pocket3.Reversed = True

# Sketch on XY plane
sketch7 = body.newObject("Sketcher::SketchObject", "Sketch006")
sketch7.AttachmentSupport = (doc.getObject("XY_Plane"), [""])
sketch7.MapMode = "FlatFace"
sketch7.addGeometry(Part.LineSegment(V(-18, 64, 0), V(-18, -64, 0)), False)
sketch7.addGeometry(Part.ArcOfCircle(Part.Circle(V(-6, -63, 0), V(0, 0, 1), 11), math.radians(-180), math.radians(-90)), False)
sketch7.addGeometry(Part.LineSegment(V(-6, -75, 0), V(6, -75, 0)), False)
sketch7.addGeometry(Part.ArcOfCircle(Part.Circle(V(6, -63, 0), V(0, 0, 1), 11), math.radians(-90), math.radians(0)), False)
sketch7.addGeometry(Part.LineSegment(V(18, -64, 0), V(18, 64, 0)), False)
sketch7.addGeometry(Part.ArcOfCircle(Part.Circle(V(6, 63, 0), V(0, 0, 1), 11), math.radians(0), math.radians(90)), False)
sketch7.addGeometry(Part.LineSegment(V(6, 75, 0), V(-6, 75, 0)), False)
sketch7.addGeometry(Part.ArcOfCircle(Part.Circle(V(-6, 63, 0), V(0, 0, 1), 11), math.radians(90), math.radians(180)), False)
sketch7.addGeometry(Part.LineSegment(V(-18, -64, 0), V(-18, 64, 0)), False)
sketch7.addGeometry(Part.ArcOfCircle(Part.Circle(V(-6, 64, 0), V(0, 0, 1), 11), math.radians(90), math.radians(180)), False)
sketch7.addGeometry(Part.LineSegment(V(-6, 75, 0), V(6, 75, 0)), False)
sketch7.addGeometry(Part.ArcOfCircle(Part.Circle(V(6, 64, 0), V(0, 0, 1), 11), math.radians(0), math.radians(90)), False)
sketch7.addGeometry(Part.LineSegment(V(18, 64, 0), V(18, -64, 0)), False)
sketch7.addGeometry(Part.ArcOfCircle(Part.Circle(V(6, -64, 0), V(0, 0, 1), 11), math.radians(-90), math.radians(0)), False)
sketch7.addGeometry(Part.LineSegment(V(6, -75, 0), V(-6, -75, 0)), False)
sketch7.addGeometry(Part.ArcOfCircle(Part.Circle(V(-6, -64, 0), V(0, 0, 1), 11), math.radians(180), math.radians(270)), False)
sketch7.addConstraint(Sketcher.Constraint("Tangent", 0, 2, 1, 1))
sketch7.addConstraint(Sketcher.Constraint("Tangent", 1, 2, 2, 1))
sketch7.addConstraint(Sketcher.Constraint("Tangent", 2, 2, 3, 1))
sketch7.addConstraint(Sketcher.Constraint("Tangent", 3, 2, 4, 1))
sketch7.addConstraint(Sketcher.Constraint("Tangent", 4, 2, 5, 1))
sketch7.addConstraint(Sketcher.Constraint("Tangent", 5, 2, 6, 1))
sketch7.addConstraint(Sketcher.Constraint("Tangent", 6, 2, 7, 1))
sketch7.addConstraint(Sketcher.Constraint("Tangent", 7, 2, 0, 1))
sketch7.addConstraint(Sketcher.Constraint("Tangent", 8, 2, 9, 2))
sketch7.addConstraint(Sketcher.Constraint("Tangent", 9, 1, 10, 1))
sketch7.addConstraint(Sketcher.Constraint("Tangent", 10, 2, 11, 2))
sketch7.addConstraint(Sketcher.Constraint("Tangent", 11, 1, 12, 1))
sketch7.addConstraint(Sketcher.Constraint("Tangent", 12, 2, 13, 2))
sketch7.addConstraint(Sketcher.Constraint("Tangent", 13, 1, 14, 1))
sketch7.addConstraint(Sketcher.Constraint("Tangent", 14, 2, 15, 2))
sketch7.addConstraint(Sketcher.Constraint("Tangent", 15, 1, 8, 1))
sketch7.addConstraint(Sketcher.Constraint("Vertical", 0))
sketch7.addConstraint(Sketcher.Constraint("Horizontal", 2))
sketch7.addConstraint(Sketcher.Constraint("Vertical", 4))
sketch7.addConstraint(Sketcher.Constraint("Horizontal", 6))
sketch7.addConstraint(Sketcher.Constraint("Vertical", 8))
sketch7.addConstraint(Sketcher.Constraint("Horizontal", 10))
sketch7.addConstraint(Sketcher.Constraint("Vertical", 12))
sketch7.addConstraint(Sketcher.Constraint("Horizontal", 14))
sketch7.addConstraint(Sketcher.Constraint("Coincident", 9, 3, 7, 3))
sketch7.addConstraint(Sketcher.Constraint("Coincident", 11, 3, 5, 3))
sketch7.addConstraint(Sketcher.Constraint("Coincident", 13, 3, 3, 3))
sketch7.addConstraint(Sketcher.Constraint("Equal", 1, 3))
sketch7.addConstraint(Sketcher.Constraint("Equal", 3, 5))
sketch7.addConstraint(Sketcher.Constraint("Equal", 5, 7))
sketch7.addConstraint(Sketcher.Constraint("Equal", 13, 15))
sketch7.addConstraint(Sketcher.Constraint("Symmetric", 1, 3, 5, 3, -1, 1))
sketch7.addConstraint(Sketcher.Constraint("DistanceY", 0, 2, 0, 1, Q("5 in")))
sketch7.addConstraint(Sketcher.Constraint("DistanceX", 2, 1, 2, 2, Q("0.5 in")))
sketch7.addConstraint(Sketcher.Constraint("Radius", 1, 11.376201))
sketch7.addConstraint(Sketcher.Constraint("Radius", 9, 11.249201))
sketch7.setExpression("Constraints[32]", "Params.sketch7_height")
sketch7.setExpression("Constraints[33]", "Params.sketch7_width")
pocket4 = body.newObject("PartDesign::Pocket", "Pocket003")
pocket4.Profile = sketch7
pocket4.setExpression("Length", "Params.pocket4_length")
pocket4.Reversed = True

doc.recompute()
